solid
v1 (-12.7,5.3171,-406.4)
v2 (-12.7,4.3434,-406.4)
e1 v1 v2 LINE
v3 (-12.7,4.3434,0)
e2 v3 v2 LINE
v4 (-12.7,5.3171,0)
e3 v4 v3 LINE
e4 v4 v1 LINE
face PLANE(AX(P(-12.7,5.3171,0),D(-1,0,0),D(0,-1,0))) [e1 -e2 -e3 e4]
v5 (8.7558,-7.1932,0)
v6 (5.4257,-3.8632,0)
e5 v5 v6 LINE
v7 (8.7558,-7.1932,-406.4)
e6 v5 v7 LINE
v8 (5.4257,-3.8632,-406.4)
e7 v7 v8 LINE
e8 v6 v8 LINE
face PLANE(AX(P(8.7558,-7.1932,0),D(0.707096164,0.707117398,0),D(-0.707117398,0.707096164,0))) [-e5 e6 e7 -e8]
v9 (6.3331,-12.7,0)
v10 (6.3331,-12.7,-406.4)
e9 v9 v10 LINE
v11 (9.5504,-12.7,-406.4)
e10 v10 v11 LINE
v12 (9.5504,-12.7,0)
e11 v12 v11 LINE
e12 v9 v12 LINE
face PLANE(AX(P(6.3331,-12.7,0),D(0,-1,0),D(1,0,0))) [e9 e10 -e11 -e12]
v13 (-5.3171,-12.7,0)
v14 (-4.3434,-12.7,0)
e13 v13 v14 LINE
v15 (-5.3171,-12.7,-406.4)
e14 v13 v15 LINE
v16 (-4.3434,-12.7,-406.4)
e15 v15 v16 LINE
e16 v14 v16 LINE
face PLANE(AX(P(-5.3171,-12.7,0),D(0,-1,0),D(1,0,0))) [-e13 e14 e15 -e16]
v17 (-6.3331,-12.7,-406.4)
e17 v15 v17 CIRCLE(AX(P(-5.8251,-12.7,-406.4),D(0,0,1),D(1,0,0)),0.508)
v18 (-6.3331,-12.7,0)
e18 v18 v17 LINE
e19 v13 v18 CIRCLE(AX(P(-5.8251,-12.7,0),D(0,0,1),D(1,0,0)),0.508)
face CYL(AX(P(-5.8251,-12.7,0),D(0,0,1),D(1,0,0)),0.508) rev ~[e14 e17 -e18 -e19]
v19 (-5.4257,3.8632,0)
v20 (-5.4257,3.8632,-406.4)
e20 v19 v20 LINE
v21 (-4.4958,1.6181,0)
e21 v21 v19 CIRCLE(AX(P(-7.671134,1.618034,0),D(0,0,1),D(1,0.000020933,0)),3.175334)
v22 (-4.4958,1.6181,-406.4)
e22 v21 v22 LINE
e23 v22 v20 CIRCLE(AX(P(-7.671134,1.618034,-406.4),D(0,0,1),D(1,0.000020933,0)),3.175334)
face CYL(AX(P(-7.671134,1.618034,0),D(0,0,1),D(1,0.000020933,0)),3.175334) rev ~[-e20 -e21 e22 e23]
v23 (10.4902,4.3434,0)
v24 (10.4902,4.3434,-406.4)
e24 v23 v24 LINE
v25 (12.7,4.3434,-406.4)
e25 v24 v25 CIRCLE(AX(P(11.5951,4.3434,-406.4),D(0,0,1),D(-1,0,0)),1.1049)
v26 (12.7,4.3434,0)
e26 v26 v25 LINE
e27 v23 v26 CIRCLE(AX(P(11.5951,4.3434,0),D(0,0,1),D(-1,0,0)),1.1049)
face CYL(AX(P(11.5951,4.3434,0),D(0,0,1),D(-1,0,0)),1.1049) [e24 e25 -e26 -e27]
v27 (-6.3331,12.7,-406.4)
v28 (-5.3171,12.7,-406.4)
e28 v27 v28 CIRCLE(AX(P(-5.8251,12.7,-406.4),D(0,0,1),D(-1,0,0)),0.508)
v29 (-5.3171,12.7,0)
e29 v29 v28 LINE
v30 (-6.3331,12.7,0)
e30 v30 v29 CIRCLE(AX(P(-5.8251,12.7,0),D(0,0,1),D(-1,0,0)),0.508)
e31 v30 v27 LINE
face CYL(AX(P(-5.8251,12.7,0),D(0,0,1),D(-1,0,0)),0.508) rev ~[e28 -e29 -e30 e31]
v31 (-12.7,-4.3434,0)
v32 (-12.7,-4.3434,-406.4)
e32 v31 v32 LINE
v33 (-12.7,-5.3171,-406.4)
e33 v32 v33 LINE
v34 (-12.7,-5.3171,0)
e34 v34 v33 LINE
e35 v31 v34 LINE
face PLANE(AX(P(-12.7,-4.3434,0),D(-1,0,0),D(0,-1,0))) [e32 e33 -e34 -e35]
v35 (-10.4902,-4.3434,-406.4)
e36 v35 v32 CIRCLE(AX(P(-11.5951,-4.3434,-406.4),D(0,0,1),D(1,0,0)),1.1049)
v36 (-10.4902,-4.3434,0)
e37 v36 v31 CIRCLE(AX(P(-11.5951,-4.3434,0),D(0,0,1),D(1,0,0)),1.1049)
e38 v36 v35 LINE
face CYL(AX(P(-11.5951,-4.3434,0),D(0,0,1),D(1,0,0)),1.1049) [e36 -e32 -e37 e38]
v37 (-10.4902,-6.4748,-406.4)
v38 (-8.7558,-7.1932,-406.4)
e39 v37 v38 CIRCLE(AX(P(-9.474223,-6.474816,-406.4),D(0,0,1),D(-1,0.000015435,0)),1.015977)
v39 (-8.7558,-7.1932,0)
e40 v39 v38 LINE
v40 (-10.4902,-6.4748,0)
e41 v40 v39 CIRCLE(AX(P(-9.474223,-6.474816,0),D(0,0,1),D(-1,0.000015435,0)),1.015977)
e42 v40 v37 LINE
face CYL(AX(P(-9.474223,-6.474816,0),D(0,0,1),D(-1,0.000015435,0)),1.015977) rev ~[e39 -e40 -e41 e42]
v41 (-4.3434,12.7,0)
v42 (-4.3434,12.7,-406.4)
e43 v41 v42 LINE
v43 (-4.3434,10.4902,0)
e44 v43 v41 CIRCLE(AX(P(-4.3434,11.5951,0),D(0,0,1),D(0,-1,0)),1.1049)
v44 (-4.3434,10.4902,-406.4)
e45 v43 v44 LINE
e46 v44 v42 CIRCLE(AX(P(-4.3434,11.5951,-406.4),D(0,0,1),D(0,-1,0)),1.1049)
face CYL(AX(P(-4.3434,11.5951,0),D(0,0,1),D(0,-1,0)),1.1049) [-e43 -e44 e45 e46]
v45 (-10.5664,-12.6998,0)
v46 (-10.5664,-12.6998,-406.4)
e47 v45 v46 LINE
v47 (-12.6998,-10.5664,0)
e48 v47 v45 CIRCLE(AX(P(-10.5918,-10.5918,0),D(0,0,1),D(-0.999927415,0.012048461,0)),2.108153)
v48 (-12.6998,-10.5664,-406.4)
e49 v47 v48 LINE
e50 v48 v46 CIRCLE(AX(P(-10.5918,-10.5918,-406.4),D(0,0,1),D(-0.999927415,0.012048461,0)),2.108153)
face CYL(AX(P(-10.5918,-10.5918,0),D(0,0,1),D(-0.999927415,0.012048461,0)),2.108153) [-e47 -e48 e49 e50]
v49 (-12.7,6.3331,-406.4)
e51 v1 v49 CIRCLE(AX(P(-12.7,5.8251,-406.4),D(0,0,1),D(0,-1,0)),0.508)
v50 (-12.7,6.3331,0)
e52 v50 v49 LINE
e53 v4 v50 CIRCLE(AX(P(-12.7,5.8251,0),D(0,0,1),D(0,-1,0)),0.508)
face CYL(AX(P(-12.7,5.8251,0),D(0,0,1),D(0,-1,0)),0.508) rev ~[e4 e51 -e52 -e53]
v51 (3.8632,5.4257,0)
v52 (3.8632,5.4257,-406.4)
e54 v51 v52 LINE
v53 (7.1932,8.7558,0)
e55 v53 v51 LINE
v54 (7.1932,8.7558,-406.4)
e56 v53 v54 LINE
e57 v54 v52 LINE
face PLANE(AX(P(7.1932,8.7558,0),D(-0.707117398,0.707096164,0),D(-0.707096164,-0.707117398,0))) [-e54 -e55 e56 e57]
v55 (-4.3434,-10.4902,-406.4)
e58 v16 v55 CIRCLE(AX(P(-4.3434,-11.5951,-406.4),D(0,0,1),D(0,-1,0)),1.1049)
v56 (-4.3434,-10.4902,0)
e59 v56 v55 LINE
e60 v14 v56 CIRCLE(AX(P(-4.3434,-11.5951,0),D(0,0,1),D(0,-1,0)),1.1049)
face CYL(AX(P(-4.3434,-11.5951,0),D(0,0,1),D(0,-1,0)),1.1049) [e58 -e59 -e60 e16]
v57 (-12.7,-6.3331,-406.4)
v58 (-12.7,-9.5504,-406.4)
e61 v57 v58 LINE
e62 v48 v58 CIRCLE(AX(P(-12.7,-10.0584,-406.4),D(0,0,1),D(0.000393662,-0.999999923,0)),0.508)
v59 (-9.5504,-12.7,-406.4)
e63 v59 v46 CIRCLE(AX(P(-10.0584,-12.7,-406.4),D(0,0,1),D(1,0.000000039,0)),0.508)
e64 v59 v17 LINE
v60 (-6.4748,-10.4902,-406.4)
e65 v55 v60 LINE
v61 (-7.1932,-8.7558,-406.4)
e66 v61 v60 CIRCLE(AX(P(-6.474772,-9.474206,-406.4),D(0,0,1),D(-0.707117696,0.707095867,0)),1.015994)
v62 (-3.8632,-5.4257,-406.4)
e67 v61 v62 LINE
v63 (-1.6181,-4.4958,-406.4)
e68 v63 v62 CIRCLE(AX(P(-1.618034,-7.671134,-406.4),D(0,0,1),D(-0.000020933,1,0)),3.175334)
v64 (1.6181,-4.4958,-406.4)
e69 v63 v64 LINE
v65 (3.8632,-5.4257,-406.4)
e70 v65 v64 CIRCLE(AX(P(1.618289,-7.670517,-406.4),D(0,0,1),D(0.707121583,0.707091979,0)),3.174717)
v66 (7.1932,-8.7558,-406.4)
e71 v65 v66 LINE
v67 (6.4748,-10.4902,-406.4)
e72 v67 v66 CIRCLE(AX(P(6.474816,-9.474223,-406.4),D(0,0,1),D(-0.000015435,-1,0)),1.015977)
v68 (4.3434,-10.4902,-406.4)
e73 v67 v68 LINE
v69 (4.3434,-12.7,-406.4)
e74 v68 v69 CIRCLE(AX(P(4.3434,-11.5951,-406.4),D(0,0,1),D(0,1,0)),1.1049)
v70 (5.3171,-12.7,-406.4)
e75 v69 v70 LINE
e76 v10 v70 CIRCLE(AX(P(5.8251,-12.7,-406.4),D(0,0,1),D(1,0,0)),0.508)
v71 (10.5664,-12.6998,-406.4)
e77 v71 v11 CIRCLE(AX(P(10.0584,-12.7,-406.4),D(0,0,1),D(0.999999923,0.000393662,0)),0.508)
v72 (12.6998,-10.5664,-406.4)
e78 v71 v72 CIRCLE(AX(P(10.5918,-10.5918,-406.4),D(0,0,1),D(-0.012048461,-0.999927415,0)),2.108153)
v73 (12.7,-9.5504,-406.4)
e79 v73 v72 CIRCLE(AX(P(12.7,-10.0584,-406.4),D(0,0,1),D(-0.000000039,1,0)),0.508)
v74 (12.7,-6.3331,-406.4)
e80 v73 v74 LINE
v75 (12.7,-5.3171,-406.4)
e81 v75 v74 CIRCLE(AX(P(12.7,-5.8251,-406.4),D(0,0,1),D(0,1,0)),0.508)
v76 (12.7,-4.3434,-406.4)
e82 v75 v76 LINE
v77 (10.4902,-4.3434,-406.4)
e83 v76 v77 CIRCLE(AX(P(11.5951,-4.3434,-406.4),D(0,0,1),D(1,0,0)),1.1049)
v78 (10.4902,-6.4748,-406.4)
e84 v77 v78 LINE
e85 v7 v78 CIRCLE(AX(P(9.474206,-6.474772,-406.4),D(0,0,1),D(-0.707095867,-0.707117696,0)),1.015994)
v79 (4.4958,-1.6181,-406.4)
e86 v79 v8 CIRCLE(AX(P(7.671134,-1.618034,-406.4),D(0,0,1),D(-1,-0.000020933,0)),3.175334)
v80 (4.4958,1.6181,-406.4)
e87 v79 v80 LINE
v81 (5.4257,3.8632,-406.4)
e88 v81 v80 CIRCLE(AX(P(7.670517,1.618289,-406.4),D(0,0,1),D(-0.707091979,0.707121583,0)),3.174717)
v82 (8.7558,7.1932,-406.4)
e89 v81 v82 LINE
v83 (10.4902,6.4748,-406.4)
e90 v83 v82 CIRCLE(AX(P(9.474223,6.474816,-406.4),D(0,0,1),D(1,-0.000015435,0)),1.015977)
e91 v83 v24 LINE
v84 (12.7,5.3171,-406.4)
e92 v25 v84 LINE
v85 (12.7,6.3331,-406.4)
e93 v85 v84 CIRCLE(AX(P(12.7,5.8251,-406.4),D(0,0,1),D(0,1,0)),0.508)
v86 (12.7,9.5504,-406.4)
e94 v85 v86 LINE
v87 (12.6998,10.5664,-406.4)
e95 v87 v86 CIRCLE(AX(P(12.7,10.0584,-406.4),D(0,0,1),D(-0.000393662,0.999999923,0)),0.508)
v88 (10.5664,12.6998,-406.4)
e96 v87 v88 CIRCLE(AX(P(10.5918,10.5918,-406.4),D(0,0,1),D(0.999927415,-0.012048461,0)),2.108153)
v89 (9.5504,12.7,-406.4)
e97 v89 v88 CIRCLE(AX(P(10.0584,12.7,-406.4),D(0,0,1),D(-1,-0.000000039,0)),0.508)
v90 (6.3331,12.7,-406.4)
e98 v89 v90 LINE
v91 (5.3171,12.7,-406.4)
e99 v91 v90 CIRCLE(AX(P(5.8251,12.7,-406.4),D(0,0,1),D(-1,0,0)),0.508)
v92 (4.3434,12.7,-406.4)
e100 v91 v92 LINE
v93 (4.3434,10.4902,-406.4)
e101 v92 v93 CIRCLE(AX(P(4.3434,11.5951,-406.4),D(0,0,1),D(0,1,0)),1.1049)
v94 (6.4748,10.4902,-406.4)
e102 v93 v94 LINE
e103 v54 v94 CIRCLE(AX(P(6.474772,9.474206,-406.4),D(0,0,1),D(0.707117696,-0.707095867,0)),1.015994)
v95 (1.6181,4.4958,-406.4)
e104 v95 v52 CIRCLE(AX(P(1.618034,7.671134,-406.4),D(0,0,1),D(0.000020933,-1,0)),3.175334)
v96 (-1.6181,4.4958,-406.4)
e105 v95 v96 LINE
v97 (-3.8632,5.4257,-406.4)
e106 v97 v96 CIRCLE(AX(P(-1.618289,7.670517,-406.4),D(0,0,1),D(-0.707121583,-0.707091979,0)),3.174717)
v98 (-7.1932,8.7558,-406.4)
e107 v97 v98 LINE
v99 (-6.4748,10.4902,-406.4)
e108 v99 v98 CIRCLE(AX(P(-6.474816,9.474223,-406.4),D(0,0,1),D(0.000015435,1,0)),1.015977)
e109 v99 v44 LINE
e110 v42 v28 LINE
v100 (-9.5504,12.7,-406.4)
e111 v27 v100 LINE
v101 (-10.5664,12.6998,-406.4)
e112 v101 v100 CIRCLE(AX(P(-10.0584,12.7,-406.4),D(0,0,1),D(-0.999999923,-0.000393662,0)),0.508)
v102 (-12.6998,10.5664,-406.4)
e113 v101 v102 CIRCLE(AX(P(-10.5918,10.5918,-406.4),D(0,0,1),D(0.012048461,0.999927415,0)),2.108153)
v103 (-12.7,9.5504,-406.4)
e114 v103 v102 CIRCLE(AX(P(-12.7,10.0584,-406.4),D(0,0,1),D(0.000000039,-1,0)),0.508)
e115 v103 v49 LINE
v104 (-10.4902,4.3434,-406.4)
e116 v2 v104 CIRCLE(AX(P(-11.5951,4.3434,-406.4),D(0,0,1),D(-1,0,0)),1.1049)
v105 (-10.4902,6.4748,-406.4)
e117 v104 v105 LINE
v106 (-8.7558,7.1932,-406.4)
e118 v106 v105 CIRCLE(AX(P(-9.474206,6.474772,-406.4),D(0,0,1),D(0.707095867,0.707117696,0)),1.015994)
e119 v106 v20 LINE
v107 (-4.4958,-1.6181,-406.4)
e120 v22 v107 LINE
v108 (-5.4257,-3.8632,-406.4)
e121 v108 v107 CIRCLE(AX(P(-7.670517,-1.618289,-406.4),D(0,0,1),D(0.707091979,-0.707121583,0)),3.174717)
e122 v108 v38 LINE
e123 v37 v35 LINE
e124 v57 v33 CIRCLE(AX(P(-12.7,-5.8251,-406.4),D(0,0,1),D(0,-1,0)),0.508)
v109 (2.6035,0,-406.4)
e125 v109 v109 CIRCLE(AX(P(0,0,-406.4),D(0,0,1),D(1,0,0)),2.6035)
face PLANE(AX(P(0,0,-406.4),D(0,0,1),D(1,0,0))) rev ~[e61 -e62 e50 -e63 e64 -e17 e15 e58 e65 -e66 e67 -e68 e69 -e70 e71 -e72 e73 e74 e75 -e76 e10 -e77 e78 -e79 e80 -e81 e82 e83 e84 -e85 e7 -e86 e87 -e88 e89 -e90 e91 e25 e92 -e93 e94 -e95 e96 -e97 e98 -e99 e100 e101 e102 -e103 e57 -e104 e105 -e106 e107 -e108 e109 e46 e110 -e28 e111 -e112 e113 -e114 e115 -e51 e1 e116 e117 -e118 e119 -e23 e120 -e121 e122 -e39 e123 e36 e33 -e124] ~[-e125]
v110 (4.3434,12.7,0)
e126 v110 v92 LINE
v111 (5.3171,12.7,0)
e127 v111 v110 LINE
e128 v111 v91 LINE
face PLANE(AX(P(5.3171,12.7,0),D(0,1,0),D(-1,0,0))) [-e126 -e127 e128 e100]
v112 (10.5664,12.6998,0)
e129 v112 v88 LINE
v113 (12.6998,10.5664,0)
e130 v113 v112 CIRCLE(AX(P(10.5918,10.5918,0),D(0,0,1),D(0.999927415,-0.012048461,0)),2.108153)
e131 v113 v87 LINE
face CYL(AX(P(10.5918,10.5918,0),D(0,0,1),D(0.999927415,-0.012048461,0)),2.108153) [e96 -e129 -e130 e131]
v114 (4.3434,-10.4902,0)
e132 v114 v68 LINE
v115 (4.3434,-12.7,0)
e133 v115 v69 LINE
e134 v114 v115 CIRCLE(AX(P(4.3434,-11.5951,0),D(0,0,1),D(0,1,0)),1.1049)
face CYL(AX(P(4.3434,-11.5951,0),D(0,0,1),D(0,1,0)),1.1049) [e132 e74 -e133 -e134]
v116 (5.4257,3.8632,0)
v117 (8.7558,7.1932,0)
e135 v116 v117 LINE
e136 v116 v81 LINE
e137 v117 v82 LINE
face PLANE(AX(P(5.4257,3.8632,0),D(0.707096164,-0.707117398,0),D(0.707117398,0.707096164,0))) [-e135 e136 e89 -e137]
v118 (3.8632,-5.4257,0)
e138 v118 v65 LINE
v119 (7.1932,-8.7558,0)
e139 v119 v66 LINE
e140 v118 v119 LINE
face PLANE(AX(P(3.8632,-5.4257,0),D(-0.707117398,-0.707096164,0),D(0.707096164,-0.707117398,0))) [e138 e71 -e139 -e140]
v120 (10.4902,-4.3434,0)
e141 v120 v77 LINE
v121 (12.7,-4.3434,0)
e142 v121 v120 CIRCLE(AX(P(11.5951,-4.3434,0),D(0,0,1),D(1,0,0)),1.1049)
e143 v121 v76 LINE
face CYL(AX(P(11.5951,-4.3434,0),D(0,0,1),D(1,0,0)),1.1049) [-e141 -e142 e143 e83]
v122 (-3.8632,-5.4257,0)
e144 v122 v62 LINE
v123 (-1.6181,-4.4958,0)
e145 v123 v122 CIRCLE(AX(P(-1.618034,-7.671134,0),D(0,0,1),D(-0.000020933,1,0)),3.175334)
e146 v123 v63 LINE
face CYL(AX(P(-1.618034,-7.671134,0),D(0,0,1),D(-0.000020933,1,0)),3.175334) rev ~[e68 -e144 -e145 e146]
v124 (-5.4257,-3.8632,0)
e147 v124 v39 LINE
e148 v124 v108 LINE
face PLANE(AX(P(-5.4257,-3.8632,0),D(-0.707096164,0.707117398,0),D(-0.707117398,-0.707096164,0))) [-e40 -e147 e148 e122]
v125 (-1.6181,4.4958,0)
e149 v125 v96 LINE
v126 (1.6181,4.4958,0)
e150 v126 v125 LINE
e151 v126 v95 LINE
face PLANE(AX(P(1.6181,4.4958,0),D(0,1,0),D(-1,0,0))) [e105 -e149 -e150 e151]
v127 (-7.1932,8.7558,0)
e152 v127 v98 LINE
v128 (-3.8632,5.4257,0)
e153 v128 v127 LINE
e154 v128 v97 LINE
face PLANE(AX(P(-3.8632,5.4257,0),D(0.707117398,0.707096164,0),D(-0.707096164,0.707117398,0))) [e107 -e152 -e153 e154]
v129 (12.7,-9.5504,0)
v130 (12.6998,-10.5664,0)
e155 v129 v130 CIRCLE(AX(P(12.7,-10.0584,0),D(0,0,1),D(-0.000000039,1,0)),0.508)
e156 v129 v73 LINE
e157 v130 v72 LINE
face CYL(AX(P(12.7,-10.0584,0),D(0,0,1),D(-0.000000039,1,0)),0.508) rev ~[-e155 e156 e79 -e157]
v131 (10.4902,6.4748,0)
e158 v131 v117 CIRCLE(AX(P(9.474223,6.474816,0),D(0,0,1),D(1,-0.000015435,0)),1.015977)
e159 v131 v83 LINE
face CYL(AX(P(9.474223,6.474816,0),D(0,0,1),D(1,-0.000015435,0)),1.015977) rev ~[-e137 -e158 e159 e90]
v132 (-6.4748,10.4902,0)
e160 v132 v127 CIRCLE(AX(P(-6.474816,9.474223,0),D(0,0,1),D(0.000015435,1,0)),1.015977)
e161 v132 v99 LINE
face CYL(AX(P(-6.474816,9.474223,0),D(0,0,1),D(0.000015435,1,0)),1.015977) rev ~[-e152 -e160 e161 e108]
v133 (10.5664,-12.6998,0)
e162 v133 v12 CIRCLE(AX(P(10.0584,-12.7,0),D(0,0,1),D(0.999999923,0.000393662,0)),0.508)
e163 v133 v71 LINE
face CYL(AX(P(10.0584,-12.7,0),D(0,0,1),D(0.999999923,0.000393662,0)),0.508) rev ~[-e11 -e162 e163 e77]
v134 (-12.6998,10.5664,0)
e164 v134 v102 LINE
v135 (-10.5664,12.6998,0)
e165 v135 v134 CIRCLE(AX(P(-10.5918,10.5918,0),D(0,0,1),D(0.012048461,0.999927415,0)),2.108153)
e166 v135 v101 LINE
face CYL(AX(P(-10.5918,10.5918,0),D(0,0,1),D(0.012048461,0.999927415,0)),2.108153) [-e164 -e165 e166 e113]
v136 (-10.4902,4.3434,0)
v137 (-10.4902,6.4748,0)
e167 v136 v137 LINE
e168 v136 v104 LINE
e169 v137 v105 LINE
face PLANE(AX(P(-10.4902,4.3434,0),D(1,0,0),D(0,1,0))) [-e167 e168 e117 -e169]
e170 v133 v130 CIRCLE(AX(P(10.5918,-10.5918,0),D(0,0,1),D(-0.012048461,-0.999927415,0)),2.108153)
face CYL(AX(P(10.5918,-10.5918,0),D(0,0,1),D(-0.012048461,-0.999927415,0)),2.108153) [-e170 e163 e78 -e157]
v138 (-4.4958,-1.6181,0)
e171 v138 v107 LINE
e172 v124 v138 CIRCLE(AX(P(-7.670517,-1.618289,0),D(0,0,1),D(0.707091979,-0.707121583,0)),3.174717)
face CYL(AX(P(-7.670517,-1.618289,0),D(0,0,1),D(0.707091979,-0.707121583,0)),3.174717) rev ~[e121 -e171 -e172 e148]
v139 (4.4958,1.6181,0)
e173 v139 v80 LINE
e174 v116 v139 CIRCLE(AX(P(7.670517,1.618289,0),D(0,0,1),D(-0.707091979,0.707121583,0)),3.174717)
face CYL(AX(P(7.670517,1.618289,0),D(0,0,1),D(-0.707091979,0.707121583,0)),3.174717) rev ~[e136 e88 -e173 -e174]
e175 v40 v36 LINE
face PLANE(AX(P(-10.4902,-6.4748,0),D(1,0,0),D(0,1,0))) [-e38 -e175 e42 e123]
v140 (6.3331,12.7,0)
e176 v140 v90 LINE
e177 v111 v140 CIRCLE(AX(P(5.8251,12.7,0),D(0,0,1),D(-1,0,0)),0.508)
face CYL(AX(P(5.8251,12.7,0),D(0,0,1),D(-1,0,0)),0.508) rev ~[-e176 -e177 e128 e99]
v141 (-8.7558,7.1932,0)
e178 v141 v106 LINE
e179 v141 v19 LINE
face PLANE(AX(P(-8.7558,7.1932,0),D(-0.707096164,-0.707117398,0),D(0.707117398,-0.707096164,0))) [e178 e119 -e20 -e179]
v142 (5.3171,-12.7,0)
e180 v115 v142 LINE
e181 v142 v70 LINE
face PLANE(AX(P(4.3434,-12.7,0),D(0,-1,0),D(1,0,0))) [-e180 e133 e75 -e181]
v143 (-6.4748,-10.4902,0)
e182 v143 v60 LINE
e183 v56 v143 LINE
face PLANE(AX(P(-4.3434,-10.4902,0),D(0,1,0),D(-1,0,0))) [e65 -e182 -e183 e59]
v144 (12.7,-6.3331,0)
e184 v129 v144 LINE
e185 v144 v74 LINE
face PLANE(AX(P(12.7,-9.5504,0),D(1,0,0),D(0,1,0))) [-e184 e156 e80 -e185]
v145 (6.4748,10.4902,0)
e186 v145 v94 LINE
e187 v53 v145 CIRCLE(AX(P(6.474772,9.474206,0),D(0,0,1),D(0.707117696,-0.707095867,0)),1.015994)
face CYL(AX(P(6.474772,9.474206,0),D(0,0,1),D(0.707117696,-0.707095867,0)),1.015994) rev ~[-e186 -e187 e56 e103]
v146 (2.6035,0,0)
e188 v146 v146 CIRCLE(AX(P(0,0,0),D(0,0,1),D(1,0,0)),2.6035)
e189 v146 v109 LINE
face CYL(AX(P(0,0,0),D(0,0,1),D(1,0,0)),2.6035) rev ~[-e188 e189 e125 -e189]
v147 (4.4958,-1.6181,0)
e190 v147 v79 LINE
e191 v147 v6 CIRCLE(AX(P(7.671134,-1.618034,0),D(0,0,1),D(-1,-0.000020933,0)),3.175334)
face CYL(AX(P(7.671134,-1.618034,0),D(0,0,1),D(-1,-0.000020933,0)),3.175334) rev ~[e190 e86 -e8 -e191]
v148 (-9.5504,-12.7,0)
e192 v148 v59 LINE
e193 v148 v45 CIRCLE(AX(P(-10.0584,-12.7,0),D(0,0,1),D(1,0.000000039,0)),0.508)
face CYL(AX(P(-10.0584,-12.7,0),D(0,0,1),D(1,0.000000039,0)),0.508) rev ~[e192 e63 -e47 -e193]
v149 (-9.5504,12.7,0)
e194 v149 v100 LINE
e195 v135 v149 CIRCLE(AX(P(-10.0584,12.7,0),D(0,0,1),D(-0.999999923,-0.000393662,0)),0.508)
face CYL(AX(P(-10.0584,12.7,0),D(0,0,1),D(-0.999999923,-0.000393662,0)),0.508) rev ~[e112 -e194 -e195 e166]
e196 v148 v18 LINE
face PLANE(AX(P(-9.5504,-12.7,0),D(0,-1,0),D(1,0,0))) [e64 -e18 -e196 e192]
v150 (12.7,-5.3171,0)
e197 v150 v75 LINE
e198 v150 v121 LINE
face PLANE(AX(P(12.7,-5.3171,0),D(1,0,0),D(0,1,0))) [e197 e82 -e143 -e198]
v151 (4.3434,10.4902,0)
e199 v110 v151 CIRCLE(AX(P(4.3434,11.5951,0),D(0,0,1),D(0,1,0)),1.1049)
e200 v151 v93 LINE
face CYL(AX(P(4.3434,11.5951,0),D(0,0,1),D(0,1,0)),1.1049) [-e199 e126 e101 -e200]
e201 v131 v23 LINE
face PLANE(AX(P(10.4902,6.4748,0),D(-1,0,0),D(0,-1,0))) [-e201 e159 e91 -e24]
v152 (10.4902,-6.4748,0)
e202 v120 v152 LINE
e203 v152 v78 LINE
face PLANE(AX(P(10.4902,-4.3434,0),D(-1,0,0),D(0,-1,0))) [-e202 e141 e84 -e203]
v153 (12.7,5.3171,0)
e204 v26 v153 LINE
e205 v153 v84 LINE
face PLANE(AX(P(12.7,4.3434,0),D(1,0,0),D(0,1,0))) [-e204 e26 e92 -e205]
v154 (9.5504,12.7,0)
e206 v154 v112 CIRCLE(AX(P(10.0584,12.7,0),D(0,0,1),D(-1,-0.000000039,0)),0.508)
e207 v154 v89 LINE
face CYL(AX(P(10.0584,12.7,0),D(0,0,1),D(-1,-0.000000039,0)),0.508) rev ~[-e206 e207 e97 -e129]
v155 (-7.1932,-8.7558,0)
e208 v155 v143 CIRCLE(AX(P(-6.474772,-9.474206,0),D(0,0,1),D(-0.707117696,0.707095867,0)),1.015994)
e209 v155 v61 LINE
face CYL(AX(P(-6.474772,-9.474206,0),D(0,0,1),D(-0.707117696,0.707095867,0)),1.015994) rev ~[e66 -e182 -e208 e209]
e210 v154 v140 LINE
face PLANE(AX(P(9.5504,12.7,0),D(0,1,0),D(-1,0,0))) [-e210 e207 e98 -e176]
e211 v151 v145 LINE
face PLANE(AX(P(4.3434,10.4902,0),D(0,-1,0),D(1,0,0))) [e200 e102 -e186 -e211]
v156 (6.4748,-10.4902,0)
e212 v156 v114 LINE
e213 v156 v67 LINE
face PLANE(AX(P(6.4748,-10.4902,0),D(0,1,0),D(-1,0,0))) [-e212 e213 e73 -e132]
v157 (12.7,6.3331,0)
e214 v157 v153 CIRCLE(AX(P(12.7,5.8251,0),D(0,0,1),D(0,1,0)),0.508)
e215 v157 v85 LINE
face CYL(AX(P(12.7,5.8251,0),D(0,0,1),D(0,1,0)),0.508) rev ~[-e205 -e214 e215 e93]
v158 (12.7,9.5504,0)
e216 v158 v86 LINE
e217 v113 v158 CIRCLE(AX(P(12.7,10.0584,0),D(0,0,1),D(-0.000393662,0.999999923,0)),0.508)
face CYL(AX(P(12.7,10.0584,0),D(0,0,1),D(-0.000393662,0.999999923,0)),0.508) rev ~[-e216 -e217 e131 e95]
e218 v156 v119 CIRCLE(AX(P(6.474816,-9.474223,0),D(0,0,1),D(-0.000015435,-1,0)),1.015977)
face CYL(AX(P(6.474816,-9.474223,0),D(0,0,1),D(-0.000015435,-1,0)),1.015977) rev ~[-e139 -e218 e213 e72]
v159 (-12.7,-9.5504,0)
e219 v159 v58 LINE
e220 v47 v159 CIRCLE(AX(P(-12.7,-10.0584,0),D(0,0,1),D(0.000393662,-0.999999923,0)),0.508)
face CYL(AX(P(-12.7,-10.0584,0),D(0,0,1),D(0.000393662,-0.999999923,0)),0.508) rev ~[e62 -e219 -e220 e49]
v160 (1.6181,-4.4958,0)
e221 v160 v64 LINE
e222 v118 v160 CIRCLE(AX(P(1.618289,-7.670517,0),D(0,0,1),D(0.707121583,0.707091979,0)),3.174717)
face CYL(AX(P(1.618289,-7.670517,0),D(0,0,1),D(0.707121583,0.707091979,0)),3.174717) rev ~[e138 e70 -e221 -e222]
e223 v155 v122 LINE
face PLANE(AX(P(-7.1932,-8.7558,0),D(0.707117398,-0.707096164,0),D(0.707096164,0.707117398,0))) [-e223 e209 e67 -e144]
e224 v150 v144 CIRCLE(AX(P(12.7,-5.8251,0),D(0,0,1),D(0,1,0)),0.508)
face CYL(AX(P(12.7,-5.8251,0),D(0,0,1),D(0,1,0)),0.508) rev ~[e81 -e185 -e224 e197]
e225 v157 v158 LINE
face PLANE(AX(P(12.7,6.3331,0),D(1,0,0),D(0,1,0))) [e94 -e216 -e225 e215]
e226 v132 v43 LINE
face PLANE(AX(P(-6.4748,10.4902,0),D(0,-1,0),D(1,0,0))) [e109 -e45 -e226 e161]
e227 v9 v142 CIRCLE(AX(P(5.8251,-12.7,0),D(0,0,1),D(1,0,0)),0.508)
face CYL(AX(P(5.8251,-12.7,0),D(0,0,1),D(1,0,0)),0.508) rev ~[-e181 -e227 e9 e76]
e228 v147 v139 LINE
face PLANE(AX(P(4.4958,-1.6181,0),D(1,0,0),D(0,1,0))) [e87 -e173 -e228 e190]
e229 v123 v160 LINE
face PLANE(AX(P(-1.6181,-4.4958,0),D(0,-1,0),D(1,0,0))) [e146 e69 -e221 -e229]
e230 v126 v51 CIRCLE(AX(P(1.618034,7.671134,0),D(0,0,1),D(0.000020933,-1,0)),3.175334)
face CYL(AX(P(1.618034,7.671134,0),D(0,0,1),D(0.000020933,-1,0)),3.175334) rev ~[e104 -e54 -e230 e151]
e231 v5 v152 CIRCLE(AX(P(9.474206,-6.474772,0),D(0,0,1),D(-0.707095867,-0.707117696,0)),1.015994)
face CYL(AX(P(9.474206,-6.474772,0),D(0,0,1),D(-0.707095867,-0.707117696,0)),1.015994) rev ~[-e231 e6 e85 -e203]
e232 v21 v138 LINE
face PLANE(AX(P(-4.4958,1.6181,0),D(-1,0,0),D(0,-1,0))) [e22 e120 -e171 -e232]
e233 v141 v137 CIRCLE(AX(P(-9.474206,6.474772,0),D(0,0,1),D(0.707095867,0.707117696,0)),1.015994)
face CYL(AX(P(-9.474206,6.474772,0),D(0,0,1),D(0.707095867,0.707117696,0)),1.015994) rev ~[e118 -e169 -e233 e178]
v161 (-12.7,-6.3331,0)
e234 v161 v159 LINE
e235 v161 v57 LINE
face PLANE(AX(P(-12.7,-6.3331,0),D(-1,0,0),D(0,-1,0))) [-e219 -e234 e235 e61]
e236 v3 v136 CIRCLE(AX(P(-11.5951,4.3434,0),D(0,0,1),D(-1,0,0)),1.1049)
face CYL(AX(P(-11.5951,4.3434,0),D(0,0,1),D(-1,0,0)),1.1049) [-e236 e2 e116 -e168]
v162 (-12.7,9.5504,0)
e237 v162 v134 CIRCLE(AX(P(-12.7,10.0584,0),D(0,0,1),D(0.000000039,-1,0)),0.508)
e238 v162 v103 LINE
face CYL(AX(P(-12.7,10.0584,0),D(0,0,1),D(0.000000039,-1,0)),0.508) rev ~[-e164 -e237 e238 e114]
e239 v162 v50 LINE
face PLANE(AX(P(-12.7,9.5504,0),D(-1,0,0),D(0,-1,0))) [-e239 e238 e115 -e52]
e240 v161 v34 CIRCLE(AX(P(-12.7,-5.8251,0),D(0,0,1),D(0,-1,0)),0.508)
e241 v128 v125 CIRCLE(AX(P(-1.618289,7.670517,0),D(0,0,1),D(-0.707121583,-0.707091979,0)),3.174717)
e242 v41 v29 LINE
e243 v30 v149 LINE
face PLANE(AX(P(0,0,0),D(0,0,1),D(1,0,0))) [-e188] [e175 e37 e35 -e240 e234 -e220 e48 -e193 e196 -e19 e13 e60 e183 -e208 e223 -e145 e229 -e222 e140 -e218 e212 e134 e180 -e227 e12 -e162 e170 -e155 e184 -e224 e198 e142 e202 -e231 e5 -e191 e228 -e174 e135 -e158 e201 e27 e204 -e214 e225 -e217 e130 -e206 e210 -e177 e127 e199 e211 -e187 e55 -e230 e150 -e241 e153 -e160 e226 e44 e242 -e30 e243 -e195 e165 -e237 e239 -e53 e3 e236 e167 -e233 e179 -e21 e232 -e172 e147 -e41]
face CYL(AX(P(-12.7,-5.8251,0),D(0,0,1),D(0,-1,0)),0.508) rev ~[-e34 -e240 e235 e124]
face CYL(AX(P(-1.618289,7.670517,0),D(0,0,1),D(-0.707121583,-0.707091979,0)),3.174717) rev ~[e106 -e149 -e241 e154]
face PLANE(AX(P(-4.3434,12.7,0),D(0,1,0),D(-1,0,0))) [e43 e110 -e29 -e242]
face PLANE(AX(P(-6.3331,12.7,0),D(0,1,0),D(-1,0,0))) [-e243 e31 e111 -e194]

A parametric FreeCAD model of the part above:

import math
import FreeCAD as App
import Part
import Sketcher
Q = App.Units.Quantity

doc = App.newDocument("Part")
body = doc.addObject("PartDesign::Body", "Body")

# Sketch on XY plane
sketch1 = doc.addObject("Sketcher::SketchObject", "Sketch")
body.addObject(sketch1)
sketch1.AttachmentSupport = (doc.XY_Plane, [""])
sketch1.MapMode = "FlatFace"
sketch1.addGeometry([
    Part.ArcOfCircle(Part.Circle(App.Vector(-12.7, -10.0584, 0), App.Vector(0, 0, 1), 0.508), math.radians(-89.977443), math.radians(90)),  # 0
    Part.ArcOfCircle(Part.Circle(App.Vector(-10.5918, -10.5918, 0), App.Vector(0, 0, 1), 2.108153), math.radians(179.309657), math.radians(270.690343)),  # 1
    Part.ArcOfCircle(Part.Circle(App.Vector(-10.0584, -12.7, 0), App.Vector(0, 0, 1), 0.508), math.radians(0), math.radians(179.977443)),  # 2
    Part.LineSegment(App.Vector(-9.5504, -12.7, 0), App.Vector(-6.3331, -12.7, 0)),  # 3
    Part.ArcOfCircle(Part.Circle(App.Vector(-5.8251, -12.7, 0), App.Vector(0, 0, 1), 0.508), math.radians(0), math.radians(180)),  # 4
    Part.LineSegment(App.Vector(-5.3171, -12.7, 0), App.Vector(-4.3434, -12.7, 0)),  # 5
    Part.ArcOfCircle(Part.Circle(App.Vector(-4.3434, -11.5951, 0), App.Vector(0, 0, 1), 1.1049), math.radians(-90), math.radians(90)),  # 6
    Part.LineSegment(App.Vector(-4.3434, -10.4902, 0), App.Vector(-6.4748, -10.4902, 0)),  # 7
    Part.ArcOfCircle(Part.Circle(App.Vector(-6.4748, -9.4742, 0), App.Vector(0, 0, 1), 1.015971), math.radians(135), math.radians(270)),  # 8
    Part.LineSegment(App.Vector(-7.1932, -8.7558, 0), App.Vector(-3.8632, -5.4257, 0)),  # 9
    Part.ArcOfCircle(Part.Circle(App.Vector(-1.6181, -7.6708, 0), App.Vector(0, 0, 1), 3.175), math.radians(90), math.radians(135)),  # 10
    Part.LineSegment(App.Vector(-1.6181, -4.4958, 0), App.Vector(1.6181, -4.4958, 0)),  # 11
    Part.ArcOfCircle(Part.Circle(App.Vector(1.6181, -7.6708, 0), App.Vector(0, 0, 1), 3.175051), math.radians(45), math.radians(90)),  # 12
    Part.LineSegment(App.Vector(3.8632, -5.4257, 0), App.Vector(7.1932, -8.7558, 0)),  # 13
    Part.ArcOfCircle(Part.Circle(App.Vector(6.4748, -9.4742, 0), App.Vector(0, 0, 1), 1.016), math.radians(-90), math.radians(45)),  # 14
    Part.LineSegment(App.Vector(6.4748, -10.4902, 0), App.Vector(4.3434, -10.4902, 0)),  # 15
    Part.ArcOfCircle(Part.Circle(App.Vector(4.3434, -11.5951, 0), App.Vector(0, 0, 1), 1.1049), math.radians(90), math.radians(270)),  # 16
    Part.LineSegment(App.Vector(4.3434, -12.7, 0), App.Vector(5.3171, -12.7, 0)),  # 17
    Part.ArcOfCircle(Part.Circle(App.Vector(5.8251, -12.7, 0), App.Vector(0, 0, 1), 0.508), math.radians(0), math.radians(180)),  # 18
    Part.LineSegment(App.Vector(6.3331, -12.7, 0), App.Vector(9.5504, -12.7, 0)),  # 19
    Part.ArcOfCircle(Part.Circle(App.Vector(10.0584, -12.7, 0), App.Vector(0, 0, 1), 0.508), math.radians(0.022557), math.radians(180)),  # 20
    Part.ArcOfCircle(Part.Circle(App.Vector(10.5918, -10.5918, 0), App.Vector(0, 0, 1), 2.108153), math.radians(-90.690343), math.radians(0.690343)),  # 21
    Part.ArcOfCircle(Part.Circle(App.Vector(12.7, -10.0584, 0), App.Vector(0, 0, 1), 0.508), math.radians(90), math.radians(269.977443)),  # 22
    Part.LineSegment(App.Vector(12.7, -9.5504, 0), App.Vector(12.7, -6.3331, 0)),  # 23
    Part.ArcOfCircle(Part.Circle(App.Vector(12.7, -5.8251, 0), App.Vector(0, 0, 1), 0.508), math.radians(90), math.radians(270)),  # 24
    Part.LineSegment(App.Vector(12.7, -5.3171, 0), App.Vector(12.7, -4.3434, 0)),  # 25
    Part.ArcOfCircle(Part.Circle(App.Vector(11.5951, -4.3434, 0), App.Vector(0, 0, 1), 1.1049), math.radians(0), math.radians(180)),  # 26
    Part.LineSegment(App.Vector(10.4902, -4.3434, 0), App.Vector(10.4902, -6.4748, 0)),  # 27
    Part.ArcOfCircle(Part.Circle(App.Vector(9.4742, -6.4748, 0), App.Vector(0, 0, 1), 1.015971), math.radians(-135), math.radians(0)),  # 28
    Part.LineSegment(App.Vector(8.7558, -7.1932, 0), App.Vector(5.4257, -3.8632, 0)),  # 29
    Part.ArcOfCircle(Part.Circle(App.Vector(7.6708, -1.6181, 0), App.Vector(0, 0, 1), 3.175), math.radians(180), math.radians(225)),  # 30
    Part.LineSegment(App.Vector(4.4958, -1.6181, 0), App.Vector(4.4958, 1.6181, 0)),  # 31
    Part.ArcOfCircle(Part.Circle(App.Vector(7.6708, 1.6181, 0), App.Vector(0, 0, 1), 3.175051), math.radians(135), math.radians(180)),  # 32
    Part.LineSegment(App.Vector(5.4257, 3.8632, 0), App.Vector(8.7558, 7.1932, 0)),  # 33
    Part.ArcOfCircle(Part.Circle(App.Vector(9.4742, 6.4748, 0), App.Vector(0, 0, 1), 1.016), math.radians(0), math.radians(135)),  # 34
    Part.LineSegment(App.Vector(10.4902, 6.4748, 0), App.Vector(10.4902, 4.3434, 0)),  # 35
    Part.ArcOfCircle(Part.Circle(App.Vector(11.5951, 4.3434, 0), App.Vector(0, 0, 1), 1.1049), math.radians(180), math.radians(360)),  # 36
    Part.LineSegment(App.Vector(12.7, 4.3434, 0), App.Vector(12.7, 5.3171, 0)),  # 37
    Part.ArcOfCircle(Part.Circle(App.Vector(12.7, 5.8251, 0), App.Vector(0, 0, 1), 0.508), math.radians(90), math.radians(270)),  # 38
    Part.LineSegment(App.Vector(12.7, 6.3331, 0), App.Vector(12.7, 9.5504, 0)),  # 39
    Part.ArcOfCircle(Part.Circle(App.Vector(12.7, 10.0584, 0), App.Vector(0, 0, 1), 0.508), math.radians(90.022557), math.radians(270)),  # 40
    Part.ArcOfCircle(Part.Circle(App.Vector(10.5918, 10.5918, 0), App.Vector(0, 0, 1), 2.108153), math.radians(-0.690343), math.radians(90.690343)),  # 41
    Part.ArcOfCircle(Part.Circle(App.Vector(10.0584, 12.7, 0), App.Vector(0, 0, 1), 0.508), math.radians(180), math.radians(359.977443)),  # 42
    Part.LineSegment(App.Vector(9.5504, 12.7, 0), App.Vector(6.3331, 12.7, 0)),  # 43
    Part.ArcOfCircle(Part.Circle(App.Vector(5.8251, 12.7, 0), App.Vector(0, 0, 1), 0.508), math.radians(180), math.radians(360)),  # 44
    Part.LineSegment(App.Vector(5.3171, 12.7, 0), App.Vector(4.3434, 12.7, 0)),  # 45
    Part.ArcOfCircle(Part.Circle(App.Vector(4.3434, 11.5951, 0), App.Vector(0, 0, 1), 1.1049), math.radians(90), math.radians(270)),  # 46
    Part.LineSegment(App.Vector(4.3434, 10.4902, 0), App.Vector(6.4748, 10.4902, 0)),  # 47
    Part.ArcOfCircle(Part.Circle(App.Vector(6.4748, 9.4742, 0), App.Vector(0, 0, 1), 1.015971), math.radians(-45), math.radians(90)),  # 48
    Part.LineSegment(App.Vector(7.1932, 8.7558, 0), App.Vector(3.8632, 5.4257, 0)),  # 49
    Part.ArcOfCircle(Part.Circle(App.Vector(1.6181, 7.6708, 0), App.Vector(0, 0, 1), 3.175), math.radians(-90), math.radians(-45)),  # 50
    Part.LineSegment(App.Vector(1.6181, 4.4958, 0), App.Vector(-1.6181, 4.4958, 0)),  # 51
    Part.ArcOfCircle(Part.Circle(App.Vector(-1.6181, 7.6708, 0), App.Vector(0, 0, 1), 3.175051), math.radians(-135), math.radians(-90)),  # 52
    Part.LineSegment(App.Vector(-3.8632, 5.4257, 0), App.Vector(-7.1932, 8.7558, 0)),  # 53
    Part.ArcOfCircle(Part.Circle(App.Vector(-6.4748, 9.4742, 0), App.Vector(0, 0, 1), 1.016), math.radians(90), math.radians(225)),  # 54
    Part.LineSegment(App.Vector(-6.4748, 10.4902, 0), App.Vector(-4.3434, 10.4902, 0)),  # 55
    Part.ArcOfCircle(Part.Circle(App.Vector(-4.3434, 11.5951, 0), App.Vector(0, 0, 1), 1.1049), math.radians(-90), math.radians(90)),  # 56
    Part.LineSegment(App.Vector(-4.3434, 12.7, 0), App.Vector(-5.3171, 12.7, 0)),  # 57
    Part.ArcOfCircle(Part.Circle(App.Vector(-5.8251, 12.7, 0), App.Vector(0, 0, 1), 0.508), math.radians(180), math.radians(360)),  # 58
    Part.LineSegment(App.Vector(-6.3331, 12.7, 0), App.Vector(-9.5504, 12.7, 0)),  # 59
    Part.ArcOfCircle(Part.Circle(App.Vector(-10.0584, 12.7, 0), App.Vector(0, 0, 1), 0.508), math.radians(-179.977443), math.radians(0)),  # 60
    Part.ArcOfCircle(Part.Circle(App.Vector(-10.5918, 10.5918, 0), App.Vector(0, 0, 1), 2.108153), math.radians(89.309657), math.radians(180.690343)),  # 61
    Part.ArcOfCircle(Part.Circle(App.Vector(-12.7, 10.0584, 0), App.Vector(0, 0, 1), 0.508), math.radians(-90), math.radians(89.977443)),  # 62
    Part.LineSegment(App.Vector(-12.7, 9.5504, 0), App.Vector(-12.7, 6.3331, 0)),  # 63
    Part.ArcOfCircle(Part.Circle(App.Vector(-12.7, 5.8251, 0), App.Vector(0, 0, 1), 0.508), math.radians(-90), math.radians(90)),  # 64
    Part.LineSegment(App.Vector(-12.7, 5.3171, 0), App.Vector(-12.7, 4.3434, 0)),  # 65
    Part.ArcOfCircle(Part.Circle(App.Vector(-11.5951, 4.3434, 0), App.Vector(0, 0, 1), 1.1049), math.radians(180), math.radians(360)),  # 66
    Part.LineSegment(App.Vector(-10.4902, 4.3434, 0), App.Vector(-10.4902, 6.4748, 0)),  # 67
    Part.ArcOfCircle(Part.Circle(App.Vector(-9.4742, 6.4748, 0), App.Vector(0, 0, 1), 1.015971), math.radians(45), math.radians(180)),  # 68
    Part.LineSegment(App.Vector(-8.7558, 7.1932, 0), App.Vector(-5.4257, 3.8632, 0)),  # 69
    Part.ArcOfCircle(Part.Circle(App.Vector(-7.6708, 1.6181, 0), App.Vector(0, 0, 1), 3.175), math.radians(0), math.radians(45)),  # 70
    Part.LineSegment(App.Vector(-4.4958, 1.6181, 0), App.Vector(-4.4958, -1.6181, 0)),  # 71
    Part.ArcOfCircle(Part.Circle(App.Vector(-7.6708, -1.6181, 0), App.Vector(0, 0, 1), 3.175051), math.radians(-45), math.radians(0)),  # 72
    Part.LineSegment(App.Vector(-5.4257, -3.8632, 0), App.Vector(-8.7558, -7.1932, 0)),  # 73
    Part.ArcOfCircle(Part.Circle(App.Vector(-9.4742, -6.4748, 0), App.Vector(0, 0, 1), 1.016), math.radians(180), math.radians(315)),  # 74
    Part.LineSegment(App.Vector(-10.4902, -6.4748, 0), App.Vector(-10.4902, -4.3434, 0)),  # 75
    Part.ArcOfCircle(Part.Circle(App.Vector(-11.5951, -4.3434, 0), App.Vector(0, 0, 1), 1.1049), math.radians(0), math.radians(180)),  # 76
    Part.LineSegment(App.Vector(-12.7, -4.3434, 0), App.Vector(-12.7, -5.3171, 0)),  # 77
    Part.ArcOfCircle(Part.Circle(App.Vector(-12.7, -5.8251, 0), App.Vector(0, 0, 1), 0.508), math.radians(-90), math.radians(90)),  # 78
    Part.LineSegment(App.Vector(-12.7, -6.3331, 0), App.Vector(-12.7, -9.5504, 0)),  # 79
    Part.Circle(App.Vector(0, 0, 0), App.Vector(0, 0, 1), 2.6035),  # 80
], False)
sketch1.addConstraint([
    Sketcher.Constraint("Coincident", 0, 1, 1, 1),
    Sketcher.Constraint("Coincident", 1, 2, 2, 2),
    Sketcher.Constraint("Coincident", 2, 1, 3, 1),
    Sketcher.Constraint("Coincident", 3, 2, 4, 2),
    Sketcher.Constraint("Coincident", 4, 1, 5, 1),
    Sketcher.Constraint("Tangent", 5, 2, 6, 1),
    Sketcher.Constraint("Tangent", 6, 2, 7, 1),
    Sketcher.Constraint("Tangent", 7, 2, 8, 2),
    Sketcher.Constraint("Tangent", 8, 1, 9, 1),
    Sketcher.Constraint("Tangent", 9, 2, 10, 2),
    Sketcher.Constraint("Tangent", 10, 1, 11, 1),
    Sketcher.Constraint("Tangent", 11, 2, 12, 2),
    Sketcher.Constraint("Tangent", 12, 1, 13, 1),
    Sketcher.Constraint("Tangent", 13, 2, 14, 2),
    Sketcher.Constraint("Tangent", 14, 1, 15, 1),
    Sketcher.Constraint("Tangent", 15, 2, 16, 1),
    Sketcher.Constraint("Tangent", 16, 2, 17, 1),
    Sketcher.Constraint("Coincident", 17, 2, 18, 2),
    Sketcher.Constraint("Coincident", 18, 1, 19, 1),
    Sketcher.Constraint("Coincident", 19, 2, 20, 2),
    Sketcher.Constraint("Coincident", 20, 1, 21, 1),
    Sketcher.Constraint("Coincident", 21, 2, 22, 2),
    Sketcher.Constraint("Coincident", 22, 1, 23, 1),
    Sketcher.Constraint("Coincident", 23, 2, 24, 2),
    Sketcher.Constraint("Coincident", 24, 1, 25, 1),
    Sketcher.Constraint("Tangent", 25, 2, 26, 1),
    Sketcher.Constraint("Tangent", 26, 2, 27, 1),
    Sketcher.Constraint("Tangent", 27, 2, 28, 2),
    Sketcher.Constraint("Tangent", 28, 1, 29, 1),
    Sketcher.Constraint("Tangent", 29, 2, 30, 2),
    Sketcher.Constraint("Tangent", 30, 1, 31, 1),
    Sketcher.Constraint("Tangent", 31, 2, 32, 2),
    Sketcher.Constraint("Tangent", 32, 1, 33, 1),
    Sketcher.Constraint("Tangent", 33, 2, 34, 2),
    Sketcher.Constraint("Tangent", 34, 1, 35, 1),
    Sketcher.Constraint("Tangent", 35, 2, 36, 1),
    Sketcher.Constraint("Tangent", 36, 2, 37, 1),
    Sketcher.Constraint("Coincident", 37, 2, 38, 2),
    Sketcher.Constraint("Coincident", 38, 1, 39, 1),
    Sketcher.Constraint("Coincident", 39, 2, 40, 2),
    Sketcher.Constraint("Coincident", 40, 1, 41, 1),
    Sketcher.Constraint("Coincident", 41, 2, 42, 2),
    Sketcher.Constraint("Coincident", 42, 1, 43, 1),
    Sketcher.Constraint("Coincident", 43, 2, 44, 2),
    Sketcher.Constraint("Coincident", 44, 1, 45, 1),
    Sketcher.Constraint("Tangent", 45, 2, 46, 1),
    Sketcher.Constraint("Tangent", 46, 2, 47, 1),
    Sketcher.Constraint("Tangent", 47, 2, 48, 2),
    Sketcher.Constraint("Tangent", 48, 1, 49, 1),
    Sketcher.Constraint("Tangent", 49, 2, 50, 2),
    Sketcher.Constraint("Tangent", 50, 1, 51, 1),
    Sketcher.Constraint("Tangent", 51, 2, 52, 2),
    Sketcher.Constraint("Tangent", 52, 1, 53, 1),
    Sketcher.Constraint("Tangent", 53, 2, 54, 2),
    Sketcher.Constraint("Tangent", 54, 1, 55, 1),
    Sketcher.Constraint("Tangent", 55, 2, 56, 1),
    Sketcher.Constraint("Tangent", 56, 2, 57, 1),
    Sketcher.Constraint("Coincident", 57, 2, 58, 2),
    Sketcher.Constraint("Coincident", 58, 1, 59, 1),
    Sketcher.Constraint("Coincident", 59, 2, 60, 2),
    Sketcher.Constraint("Coincident", 60, 1, 61, 1),
    Sketcher.Constraint("Coincident", 61, 2, 62, 2),
    Sketcher.Constraint("Coincident", 62, 1, 63, 1),
    Sketcher.Constraint("Coincident", 63, 2, 64, 2),
    Sketcher.Constraint("Coincident", 64, 1, 65, 1),
    Sketcher.Constraint("Tangent", 65, 2, 66, 1),
    Sketcher.Constraint("Tangent", 66, 2, 67, 1),
    Sketcher.Constraint("Tangent", 67, 2, 68, 2),
    Sketcher.Constraint("Tangent", 68, 1, 69, 1),
    Sketcher.Constraint("Tangent", 69, 2, 70, 2),
    Sketcher.Constraint("Tangent", 70, 1, 71, 1),
    Sketcher.Constraint("Tangent", 71, 2, 72, 2),
    Sketcher.Constraint("Tangent", 72, 1, 73, 1),
    Sketcher.Constraint("Tangent", 73, 2, 74, 2),
    Sketcher.Constraint("Tangent", 74, 1, 75, 1),
    Sketcher.Constraint("Tangent", 75, 2, 76, 1),
    Sketcher.Constraint("Tangent", 76, 2, 77, 1),
    Sketcher.Constraint("Coincident", 77, 2, 78, 2),
    Sketcher.Constraint("Coincident", 78, 1, 79, 1),
    Sketcher.Constraint("Coincident", 79, 2, 0, 2),
    Sketcher.Constraint("Horizontal", 3),
    Sketcher.Constraint("Horizontal", 5),
    Sketcher.Constraint("Horizontal", 7),
    Sketcher.Constraint("Horizontal", 11),
    Sketcher.Constraint("Horizontal", 15),
    Sketcher.Constraint("Horizontal", 17),
    Sketcher.Constraint("Horizontal", 19),
    Sketcher.Constraint("Vertical", 23),
    Sketcher.Constraint("Vertical", 25),
    Sketcher.Constraint("Vertical", 27),
    Sketcher.Constraint("Vertical", 31),
    Sketcher.Constraint("Vertical", 35),
    Sketcher.Constraint("Vertical", 37),
    Sketcher.Constraint("Vertical", 39),
    Sketcher.Constraint("Horizontal", 43),
    Sketcher.Constraint("Horizontal", 45),
    Sketcher.Constraint("Horizontal", 47),
    Sketcher.Constraint("Horizontal", 51),
    Sketcher.Constraint("Horizontal", 55),
    Sketcher.Constraint("Horizontal", 57),
    Sketcher.Constraint("Horizontal", 59),
    Sketcher.Constraint("Vertical", 63),
    Sketcher.Constraint("Vertical", 65),
    Sketcher.Constraint("Vertical", 67),
    Sketcher.Constraint("Vertical", 71),
    Sketcher.Constraint("Vertical", 75),
    Sketcher.Constraint("Vertical", 77),
    Sketcher.Constraint("Vertical", 79),
    Sketcher.Constraint("Coincident", 80, 3, -1, 1),
    Sketcher.Constraint("Equal", 0, 2),
    Sketcher.Constraint("Equal", 2, 4),
    Sketcher.Constraint("Equal", 10, 12),
    Sketcher.Constraint("Equal", 8, 14),
    Sketcher.Constraint("Equal", 6, 16),
    Sketcher.Constraint("Equal", 4, 18),
    Sketcher.Constraint("Equal", 18, 20),
    Sketcher.Constraint("Equal", 1, 21),
    Sketcher.Constraint("Equal", 20, 22),
    Sketcher.Constraint("Equal", 22, 24),
    Sketcher.Constraint("Equal", 16, 26),
    Sketcher.Constraint("Equal", 14, 28),
    Sketcher.Constraint("Equal", 12, 30),
    Sketcher.Constraint("Equal", 30, 32),
    Sketcher.Constraint("Equal", 28, 34),
    Sketcher.Constraint("Equal", 26, 36),
    Sketcher.Constraint("Equal", 24, 38),
    Sketcher.Constraint("Equal", 38, 40),
    Sketcher.Constraint("Equal", 21, 41),
    Sketcher.Constraint("Equal", 40, 42),
    Sketcher.Constraint("Equal", 42, 44),
    Sketcher.Constraint("Equal", 36, 46),
    Sketcher.Constraint("Equal", 34, 48),
    Sketcher.Constraint("Equal", 32, 50),
    Sketcher.Constraint("Equal", 50, 52),
    Sketcher.Constraint("Equal", 48, 54),
    Sketcher.Constraint("Equal", 46, 56),
    Sketcher.Constraint("Equal", 44, 58),
    Sketcher.Constraint("Equal", 58, 60),
    Sketcher.Constraint("Equal", 41, 61),
    Sketcher.Constraint("Equal", 60, 62),
    Sketcher.Constraint("Equal", 62, 64),
    Sketcher.Constraint("Equal", 56, 66),
    Sketcher.Constraint("Equal", 54, 68),
    Sketcher.Constraint("Equal", 52, 70),
    Sketcher.Constraint("Equal", 70, 72),
    Sketcher.Constraint("Equal", 68, 74),
    Sketcher.Constraint("Equal", 66, 76),
    Sketcher.Constraint("Equal", 64, 78),
    Sketcher.Constraint("Symmetric", 0, 3, 40, 3, -1, 1),
    Sketcher.Constraint("Symmetric", 1, 3, 41, 3, -1, 1),
    Sketcher.Constraint("Symmetric", 2, 3, 42, 3, -1, 1),
    Sketcher.Constraint("Symmetric", 4, 3, 44, 3, -1, 1),
    Sketcher.Constraint("Symmetric", 6, 3, 46, 3, -1, 1),
    Sketcher.Constraint("Symmetric", 10, 3, 50, 3, -1, 1),
    Sketcher.Constraint("Symmetric", 14, 3, 54, 3, -1, 1),
    Sketcher.Constraint("Symmetric", 18, 3, 58, 3, -1, 1),
    Sketcher.Constraint("Symmetric", 20, 3, 60, 3, -1, 1),
    Sketcher.Constraint("Symmetric", 21, 3, 61, 3, -1, 1),
    Sketcher.Constraint("Symmetric", 22, 3, 62, 3, -1, 1),
    Sketcher.Constraint("Symmetric", 24, 3, 64, 3, -1, 1),
    Sketcher.Constraint("Symmetric", 26, 3, 66, 3, -1, 1),
    Sketcher.Constraint("Symmetric", 30, 3, 70, 3, -1, 1),
    Sketcher.Constraint("Symmetric", 34, 3, 74, 3, -1, 1),
    Sketcher.Constraint("Symmetric", 38, 3, 78, 3, -1, 1),
    Sketcher.Constraint("Symmetric", 8, 3, 14, 3, -2),
    Sketcher.Constraint("Symmetric", 4, 3, 18, 3, -2),
    Sketcher.Constraint("Symmetric", 2, 3, 20, 3, -2),
    Sketcher.Constraint("Symmetric", 1, 3, 21, 3, -2),
    Sketcher.Constraint("Symmetric", 0, 3, 22, 3, -2),
    Sketcher.Constraint("Symmetric", 38, 3, 64, 3, -2),
    Sketcher.Constraint("Symmetric", 36, 3, 66, 3, -2),
    Sketcher.Constraint("Symmetric", 49, 2, 52, 1, -2),
    Sketcher.Constraint("Symmetric", 33, 2, 68, 1, -2),
    Sketcher.Constraint("Symmetric", 29, 2, 72, 1, -2),
    Sketcher.Constraint("Perpendicular", 9, 13),
    Sketcher.Constraint("Parallel", 13, 29),
    Sketcher.Constraint("Perpendicular", 29, 33),
    Sketcher.Constraint("Horizontal", 2, 3, 4, 3),
    Sketcher.Constraint("Horizontal", 26, 3, 76, 3),
    Sketcher.Constraint("Horizontal", 20, 3, 1, 2),
    Sketcher.Constraint("Horizontal", 1, 2, 2, 1),
    Sketcher.Constraint("Horizontal", 3, 2, 4, 1),
    Sketcher.Constraint("Horizontal", 17, 2, 18, 1),
    Sketcher.Constraint("Horizontal", 41, 2, 42, 1),
    Sketcher.Constraint("Horizontal", 57, 2, 58, 1),
    Sketcher.Constraint("Vertical", 22, 3, 24, 3),
    Sketcher.Constraint("Vertical", 16, 3, 46, 3),
    Sketcher.Constraint("Vertical", 6, 3, 56, 3),
    Sketcher.Constraint("Vertical", 78, 3, 0, 1),
    Sketcher.Constraint("Vertical", 21, 2, 22, 1),
    Sketcher.Constraint("Vertical", 23, 2, 24, 1),
    Sketcher.Constraint("Vertical", 37, 2, 38, 1),
    Sketcher.Constraint("Vertical", 61, 2, 62, 1),
    Sketcher.Constraint("Vertical", 77, 2, 78, 1),
    Sketcher.Constraint("Equal", 59, 23),
    Sketcher.Constraint("Equal", 57, 25),
    Sketcher.Constraint("Equal", 55, 27),
    Sketcher.Constraint("Equal", 51, 31),
    Sketcher.Constraint("Equal", 13, 29),
    Sketcher.Constraint("Radius", 0, Q("0.02 in")),
    Sketcher.Constraint("Radius", 8, Q("0.04 in")),
    Sketcher.Constraint("Diameter", 80, Q("0.205 in")),
    Sketcher.Constraint("Radius", 1, Q("0.083 in")),
    Sketcher.Constraint("Radius", 10, Q("0.125 in")),
    Sketcher.Constraint("DistanceX", 0, 3, -1, 1, Q("0.5 in")),
    Sketcher.Constraint("DistanceY", 2, 3, -1, 1, Q("0.5 in")),
    Sketcher.Constraint("Radius", 6, Q("0.0435 in")),
    Sketcher.Constraint("DistanceX", 11, 1, 11, 2, Q("0.1274 in")),
    Sketcher.Constraint("DistanceY", 0, 3, -1, 1, Q("0.396 in")),
    Sketcher.Constraint("DistanceX", 6, 3, -1, 1, Q("0.171 in")),
    Sketcher.Constraint("DistanceY", 10, 3, -1, 1, Q("0.302 in")),
    Sketcher.Constraint("DistanceX", 3, 1, 3, 2, 3.2173),
])
pad1 = doc.addObject("PartDesign::Pad", "Pad")
body.addObject(pad1)
pad1.Profile = sketch1
pad1.Length = Q("16 in")
pad1.Reversed = True

doc.recompute()
